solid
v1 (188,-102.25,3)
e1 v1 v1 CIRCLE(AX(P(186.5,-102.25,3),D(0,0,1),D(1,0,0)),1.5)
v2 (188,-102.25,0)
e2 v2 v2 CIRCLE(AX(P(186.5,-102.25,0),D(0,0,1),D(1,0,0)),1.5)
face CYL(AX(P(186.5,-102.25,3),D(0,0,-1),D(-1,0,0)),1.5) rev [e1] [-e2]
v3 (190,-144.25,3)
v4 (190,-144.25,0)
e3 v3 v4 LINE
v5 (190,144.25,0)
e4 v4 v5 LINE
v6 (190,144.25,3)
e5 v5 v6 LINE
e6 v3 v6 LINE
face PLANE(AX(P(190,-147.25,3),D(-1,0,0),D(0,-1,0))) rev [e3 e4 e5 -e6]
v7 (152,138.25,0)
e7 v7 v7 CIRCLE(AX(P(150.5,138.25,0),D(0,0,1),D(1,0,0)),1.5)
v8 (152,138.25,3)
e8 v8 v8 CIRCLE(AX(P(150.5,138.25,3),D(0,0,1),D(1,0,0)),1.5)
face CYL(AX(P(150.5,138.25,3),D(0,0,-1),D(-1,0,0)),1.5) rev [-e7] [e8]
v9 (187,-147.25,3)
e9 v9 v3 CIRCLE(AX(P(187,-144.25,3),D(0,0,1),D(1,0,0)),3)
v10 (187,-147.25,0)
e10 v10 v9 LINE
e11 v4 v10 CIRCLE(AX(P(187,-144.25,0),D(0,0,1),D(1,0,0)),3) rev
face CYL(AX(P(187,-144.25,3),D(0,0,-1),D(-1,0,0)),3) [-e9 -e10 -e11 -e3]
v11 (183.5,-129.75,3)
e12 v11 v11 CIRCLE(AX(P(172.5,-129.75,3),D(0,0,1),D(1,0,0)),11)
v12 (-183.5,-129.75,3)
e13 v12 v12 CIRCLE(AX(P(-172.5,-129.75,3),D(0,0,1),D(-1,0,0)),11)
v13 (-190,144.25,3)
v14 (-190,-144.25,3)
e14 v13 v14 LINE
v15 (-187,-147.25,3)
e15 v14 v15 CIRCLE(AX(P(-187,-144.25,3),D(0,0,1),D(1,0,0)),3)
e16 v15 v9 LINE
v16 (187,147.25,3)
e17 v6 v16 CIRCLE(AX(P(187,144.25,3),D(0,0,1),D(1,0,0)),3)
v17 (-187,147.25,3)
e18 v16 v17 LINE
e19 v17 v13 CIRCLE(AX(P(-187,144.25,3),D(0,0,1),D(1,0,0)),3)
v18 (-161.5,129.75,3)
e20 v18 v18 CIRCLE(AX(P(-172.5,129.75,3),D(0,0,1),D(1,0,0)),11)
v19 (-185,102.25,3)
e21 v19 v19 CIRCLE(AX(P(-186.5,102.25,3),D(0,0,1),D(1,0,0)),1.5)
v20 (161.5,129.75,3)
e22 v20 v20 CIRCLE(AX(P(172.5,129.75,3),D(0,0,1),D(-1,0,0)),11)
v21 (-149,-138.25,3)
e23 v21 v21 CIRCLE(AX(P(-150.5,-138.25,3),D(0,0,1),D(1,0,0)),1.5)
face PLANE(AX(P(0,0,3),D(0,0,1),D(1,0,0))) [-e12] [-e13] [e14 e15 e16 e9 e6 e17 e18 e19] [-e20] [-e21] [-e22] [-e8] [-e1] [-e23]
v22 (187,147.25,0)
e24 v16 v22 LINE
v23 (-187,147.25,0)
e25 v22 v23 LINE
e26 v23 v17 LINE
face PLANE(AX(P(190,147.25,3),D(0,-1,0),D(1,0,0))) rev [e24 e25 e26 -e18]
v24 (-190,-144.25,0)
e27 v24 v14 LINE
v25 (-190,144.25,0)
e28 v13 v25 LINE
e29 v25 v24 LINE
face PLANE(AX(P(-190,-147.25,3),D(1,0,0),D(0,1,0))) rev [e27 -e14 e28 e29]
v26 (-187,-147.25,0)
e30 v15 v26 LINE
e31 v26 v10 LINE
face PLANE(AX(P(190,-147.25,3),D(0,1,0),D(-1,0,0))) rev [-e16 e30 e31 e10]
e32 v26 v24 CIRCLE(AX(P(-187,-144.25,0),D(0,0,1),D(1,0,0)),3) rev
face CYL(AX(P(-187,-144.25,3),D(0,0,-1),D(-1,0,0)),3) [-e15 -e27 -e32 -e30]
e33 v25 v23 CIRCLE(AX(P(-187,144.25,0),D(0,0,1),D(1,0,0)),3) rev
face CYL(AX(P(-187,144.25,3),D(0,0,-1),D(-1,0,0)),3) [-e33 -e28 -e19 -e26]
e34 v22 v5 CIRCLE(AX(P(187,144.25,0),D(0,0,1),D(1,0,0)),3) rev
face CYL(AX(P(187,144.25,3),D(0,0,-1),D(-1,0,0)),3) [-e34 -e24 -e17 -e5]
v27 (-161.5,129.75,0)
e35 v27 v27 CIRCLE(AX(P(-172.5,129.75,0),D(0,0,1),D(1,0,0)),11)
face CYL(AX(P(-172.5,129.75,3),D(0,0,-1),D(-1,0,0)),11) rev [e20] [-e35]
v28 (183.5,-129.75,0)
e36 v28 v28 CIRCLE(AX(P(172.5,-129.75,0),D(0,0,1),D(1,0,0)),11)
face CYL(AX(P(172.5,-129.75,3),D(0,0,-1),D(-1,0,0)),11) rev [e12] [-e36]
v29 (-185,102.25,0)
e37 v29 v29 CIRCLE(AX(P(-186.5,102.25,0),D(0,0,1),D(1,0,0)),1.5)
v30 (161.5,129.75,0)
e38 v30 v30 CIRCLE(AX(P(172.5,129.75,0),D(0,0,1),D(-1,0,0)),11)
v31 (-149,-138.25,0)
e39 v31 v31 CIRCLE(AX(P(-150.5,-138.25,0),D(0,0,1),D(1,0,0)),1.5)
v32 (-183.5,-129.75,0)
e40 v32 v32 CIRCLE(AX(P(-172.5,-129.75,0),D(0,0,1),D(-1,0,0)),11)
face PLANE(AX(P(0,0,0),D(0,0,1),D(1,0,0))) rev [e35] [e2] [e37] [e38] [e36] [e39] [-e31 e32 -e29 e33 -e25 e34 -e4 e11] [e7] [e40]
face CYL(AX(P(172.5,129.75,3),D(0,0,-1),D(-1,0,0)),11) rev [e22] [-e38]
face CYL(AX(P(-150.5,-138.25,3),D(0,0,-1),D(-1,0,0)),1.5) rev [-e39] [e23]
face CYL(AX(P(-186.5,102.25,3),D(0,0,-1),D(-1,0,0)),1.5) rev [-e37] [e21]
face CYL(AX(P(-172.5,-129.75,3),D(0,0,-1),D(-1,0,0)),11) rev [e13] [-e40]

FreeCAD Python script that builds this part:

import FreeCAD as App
import Part
import Sketcher
Q = App.Units.Quantity


def edges_at(feature, points):
    """Names of the edges that pass closest to the given points."""
    edges = feature.Shape.Edges
    near = lambda p: min(range(len(edges)), key=lambda i: edges[i].distToShape(Part.Vertex(*p))[0])
    return sorted({f"Edge{near(p) + 1}" for p in points})


def add_polygon(sketch, points):
    """Adds a closed chain of lines whose ends are joined by coincident constraints."""
    first, n = sketch.GeometryCount, len(points)
    for a, b in zip(points, points[1:] + points[:1]):
        sketch.addGeometry(Part.LineSegment(App.Vector(*a, 0), App.Vector(*b, 0)), False)
    for i in range(n):
        sketch.addConstraint(Sketcher.Constraint("Coincident", first + i, 2, first + (i + 1) % n, 1))

doc = App.newDocument("Part")
body = doc.addObject("PartDesign::Body", "Body")

# Sketch on XY plane
sketch1 = body.newObject("Sketcher::SketchObject", "Sketch")
sketch1.AttachmentSupport = (doc.getObject("XY_Plane"), [""])
sketch1.MapMode = "FlatFace"
add_polygon(sketch1, [(-190, 147.2), (-190, -147.2), (190, -147.2), (190, 147.2)])  # lines 0-3
sketch1.addGeometry(Part.Circle(App.Vector(-172.5, -129.8, 0), App.Vector(0, 0, 1), 11), False)  # 4
sketch1.addGeometry(Part.Circle(App.Vector(-150.5, -138.2, 0), App.Vector(0, 0, 1), 1.5), False)  # 5
sketch1.addGeometry(Part.Circle(App.Vector(172.5, -129.8, 0), App.Vector(0, 0, 1), 11), False)  # 6
sketch1.addGeometry(Part.Circle(App.Vector(186.5, -102.2, 0), App.Vector(0, 0, 1), 1.5), False)  # 7
sketch1.addGeometry(Part.Circle(App.Vector(-186.5, 102.2, 0), App.Vector(0, 0, 1), 1.5), False)  # 8
sketch1.addGeometry(Part.Circle(App.Vector(-172.5, 129.8, 0), App.Vector(0, 0, 1), 11), False)  # 9
sketch1.addGeometry(Part.Circle(App.Vector(150.5, 138.2, 0), App.Vector(0, 0, 1), 1.5), False)  # 10
sketch1.addGeometry(Part.Circle(App.Vector(172.5, 129.8, 0), App.Vector(0, 0, 1), 11), False)  # 11
sketch1.addConstraint([
    Sketcher.Constraint("Vertical", 0),
    Sketcher.Constraint("Horizontal", 1),
    Sketcher.Constraint("Vertical", 2),
    Sketcher.Constraint("Horizontal", 3),
    Sketcher.Constraint("Equal", 4, 6),
    Sketcher.Constraint("Equal", 5, 7),
    Sketcher.Constraint("Equal", 7, 8),
    Sketcher.Constraint("Equal", 6, 9),
    Sketcher.Constraint("Equal", 8, 10),
    Sketcher.Constraint("Equal", 9, 11),
    Sketcher.Constraint("Symmetric", 7, 3, 8, 3, -1, 1),
    Sketcher.Constraint("Symmetric", 6, 3, 9, 3, -1, 1),
    Sketcher.Constraint("Symmetric", 5, 3, 10, 3, -1, 1),
    Sketcher.Constraint("Symmetric", 4, 3, 11, 3, -1, 1),
    Sketcher.Constraint("Symmetric", 0, 2, 2, 2, -1, 1),
    Sketcher.Constraint("Symmetric", 4, 3, 6, 3, -2),
    Sketcher.Constraint("Diameter", 4, Q("22 mm")),
    Sketcher.Constraint("Diameter", 5, Q("3 mm")),
    Sketcher.Constraint("DistanceX", 1, 1, 1, 2, Q("380 mm")),
    Sketcher.Constraint("DistanceY", 0, 2, 0, 1, Q("294.5 mm")),
    Sketcher.Constraint("DistanceX", 4, 3, 5, 3, Q("22 mm")),
    Sketcher.Constraint("DistanceX", 5, 3, 6, 3, Q("323 mm")),
    Sketcher.Constraint("DistanceX", 6, 3, 7, 3, Q("14 mm")),
    Sketcher.Constraint("DistanceY", 5, 3, 7, 3, Q("36 mm")),
    Sketcher.Constraint("DistanceY", 4, 3, 8, 3, Q("232 mm")),
    Sketcher.Constraint("DistanceY", 0, 2, 5, 3, Q("9 mm")),
])
pad1 = body.newObject("PartDesign::Pad", "Pad")
pad1.Profile = sketch1
pad1.Length = 3
doc.recompute()

fillet = body.newObject("PartDesign::Fillet", "Fillet")
fillet.Base = (pad1, edges_at(pad1, [
    (-190, 147.25, 1.5),
    (190, 147.25, 1.5),
    (190, -147.25, 1.5),
    (-190, -147.25, 1.5),
]))
fillet.Radius = 3

doc.recompute()
